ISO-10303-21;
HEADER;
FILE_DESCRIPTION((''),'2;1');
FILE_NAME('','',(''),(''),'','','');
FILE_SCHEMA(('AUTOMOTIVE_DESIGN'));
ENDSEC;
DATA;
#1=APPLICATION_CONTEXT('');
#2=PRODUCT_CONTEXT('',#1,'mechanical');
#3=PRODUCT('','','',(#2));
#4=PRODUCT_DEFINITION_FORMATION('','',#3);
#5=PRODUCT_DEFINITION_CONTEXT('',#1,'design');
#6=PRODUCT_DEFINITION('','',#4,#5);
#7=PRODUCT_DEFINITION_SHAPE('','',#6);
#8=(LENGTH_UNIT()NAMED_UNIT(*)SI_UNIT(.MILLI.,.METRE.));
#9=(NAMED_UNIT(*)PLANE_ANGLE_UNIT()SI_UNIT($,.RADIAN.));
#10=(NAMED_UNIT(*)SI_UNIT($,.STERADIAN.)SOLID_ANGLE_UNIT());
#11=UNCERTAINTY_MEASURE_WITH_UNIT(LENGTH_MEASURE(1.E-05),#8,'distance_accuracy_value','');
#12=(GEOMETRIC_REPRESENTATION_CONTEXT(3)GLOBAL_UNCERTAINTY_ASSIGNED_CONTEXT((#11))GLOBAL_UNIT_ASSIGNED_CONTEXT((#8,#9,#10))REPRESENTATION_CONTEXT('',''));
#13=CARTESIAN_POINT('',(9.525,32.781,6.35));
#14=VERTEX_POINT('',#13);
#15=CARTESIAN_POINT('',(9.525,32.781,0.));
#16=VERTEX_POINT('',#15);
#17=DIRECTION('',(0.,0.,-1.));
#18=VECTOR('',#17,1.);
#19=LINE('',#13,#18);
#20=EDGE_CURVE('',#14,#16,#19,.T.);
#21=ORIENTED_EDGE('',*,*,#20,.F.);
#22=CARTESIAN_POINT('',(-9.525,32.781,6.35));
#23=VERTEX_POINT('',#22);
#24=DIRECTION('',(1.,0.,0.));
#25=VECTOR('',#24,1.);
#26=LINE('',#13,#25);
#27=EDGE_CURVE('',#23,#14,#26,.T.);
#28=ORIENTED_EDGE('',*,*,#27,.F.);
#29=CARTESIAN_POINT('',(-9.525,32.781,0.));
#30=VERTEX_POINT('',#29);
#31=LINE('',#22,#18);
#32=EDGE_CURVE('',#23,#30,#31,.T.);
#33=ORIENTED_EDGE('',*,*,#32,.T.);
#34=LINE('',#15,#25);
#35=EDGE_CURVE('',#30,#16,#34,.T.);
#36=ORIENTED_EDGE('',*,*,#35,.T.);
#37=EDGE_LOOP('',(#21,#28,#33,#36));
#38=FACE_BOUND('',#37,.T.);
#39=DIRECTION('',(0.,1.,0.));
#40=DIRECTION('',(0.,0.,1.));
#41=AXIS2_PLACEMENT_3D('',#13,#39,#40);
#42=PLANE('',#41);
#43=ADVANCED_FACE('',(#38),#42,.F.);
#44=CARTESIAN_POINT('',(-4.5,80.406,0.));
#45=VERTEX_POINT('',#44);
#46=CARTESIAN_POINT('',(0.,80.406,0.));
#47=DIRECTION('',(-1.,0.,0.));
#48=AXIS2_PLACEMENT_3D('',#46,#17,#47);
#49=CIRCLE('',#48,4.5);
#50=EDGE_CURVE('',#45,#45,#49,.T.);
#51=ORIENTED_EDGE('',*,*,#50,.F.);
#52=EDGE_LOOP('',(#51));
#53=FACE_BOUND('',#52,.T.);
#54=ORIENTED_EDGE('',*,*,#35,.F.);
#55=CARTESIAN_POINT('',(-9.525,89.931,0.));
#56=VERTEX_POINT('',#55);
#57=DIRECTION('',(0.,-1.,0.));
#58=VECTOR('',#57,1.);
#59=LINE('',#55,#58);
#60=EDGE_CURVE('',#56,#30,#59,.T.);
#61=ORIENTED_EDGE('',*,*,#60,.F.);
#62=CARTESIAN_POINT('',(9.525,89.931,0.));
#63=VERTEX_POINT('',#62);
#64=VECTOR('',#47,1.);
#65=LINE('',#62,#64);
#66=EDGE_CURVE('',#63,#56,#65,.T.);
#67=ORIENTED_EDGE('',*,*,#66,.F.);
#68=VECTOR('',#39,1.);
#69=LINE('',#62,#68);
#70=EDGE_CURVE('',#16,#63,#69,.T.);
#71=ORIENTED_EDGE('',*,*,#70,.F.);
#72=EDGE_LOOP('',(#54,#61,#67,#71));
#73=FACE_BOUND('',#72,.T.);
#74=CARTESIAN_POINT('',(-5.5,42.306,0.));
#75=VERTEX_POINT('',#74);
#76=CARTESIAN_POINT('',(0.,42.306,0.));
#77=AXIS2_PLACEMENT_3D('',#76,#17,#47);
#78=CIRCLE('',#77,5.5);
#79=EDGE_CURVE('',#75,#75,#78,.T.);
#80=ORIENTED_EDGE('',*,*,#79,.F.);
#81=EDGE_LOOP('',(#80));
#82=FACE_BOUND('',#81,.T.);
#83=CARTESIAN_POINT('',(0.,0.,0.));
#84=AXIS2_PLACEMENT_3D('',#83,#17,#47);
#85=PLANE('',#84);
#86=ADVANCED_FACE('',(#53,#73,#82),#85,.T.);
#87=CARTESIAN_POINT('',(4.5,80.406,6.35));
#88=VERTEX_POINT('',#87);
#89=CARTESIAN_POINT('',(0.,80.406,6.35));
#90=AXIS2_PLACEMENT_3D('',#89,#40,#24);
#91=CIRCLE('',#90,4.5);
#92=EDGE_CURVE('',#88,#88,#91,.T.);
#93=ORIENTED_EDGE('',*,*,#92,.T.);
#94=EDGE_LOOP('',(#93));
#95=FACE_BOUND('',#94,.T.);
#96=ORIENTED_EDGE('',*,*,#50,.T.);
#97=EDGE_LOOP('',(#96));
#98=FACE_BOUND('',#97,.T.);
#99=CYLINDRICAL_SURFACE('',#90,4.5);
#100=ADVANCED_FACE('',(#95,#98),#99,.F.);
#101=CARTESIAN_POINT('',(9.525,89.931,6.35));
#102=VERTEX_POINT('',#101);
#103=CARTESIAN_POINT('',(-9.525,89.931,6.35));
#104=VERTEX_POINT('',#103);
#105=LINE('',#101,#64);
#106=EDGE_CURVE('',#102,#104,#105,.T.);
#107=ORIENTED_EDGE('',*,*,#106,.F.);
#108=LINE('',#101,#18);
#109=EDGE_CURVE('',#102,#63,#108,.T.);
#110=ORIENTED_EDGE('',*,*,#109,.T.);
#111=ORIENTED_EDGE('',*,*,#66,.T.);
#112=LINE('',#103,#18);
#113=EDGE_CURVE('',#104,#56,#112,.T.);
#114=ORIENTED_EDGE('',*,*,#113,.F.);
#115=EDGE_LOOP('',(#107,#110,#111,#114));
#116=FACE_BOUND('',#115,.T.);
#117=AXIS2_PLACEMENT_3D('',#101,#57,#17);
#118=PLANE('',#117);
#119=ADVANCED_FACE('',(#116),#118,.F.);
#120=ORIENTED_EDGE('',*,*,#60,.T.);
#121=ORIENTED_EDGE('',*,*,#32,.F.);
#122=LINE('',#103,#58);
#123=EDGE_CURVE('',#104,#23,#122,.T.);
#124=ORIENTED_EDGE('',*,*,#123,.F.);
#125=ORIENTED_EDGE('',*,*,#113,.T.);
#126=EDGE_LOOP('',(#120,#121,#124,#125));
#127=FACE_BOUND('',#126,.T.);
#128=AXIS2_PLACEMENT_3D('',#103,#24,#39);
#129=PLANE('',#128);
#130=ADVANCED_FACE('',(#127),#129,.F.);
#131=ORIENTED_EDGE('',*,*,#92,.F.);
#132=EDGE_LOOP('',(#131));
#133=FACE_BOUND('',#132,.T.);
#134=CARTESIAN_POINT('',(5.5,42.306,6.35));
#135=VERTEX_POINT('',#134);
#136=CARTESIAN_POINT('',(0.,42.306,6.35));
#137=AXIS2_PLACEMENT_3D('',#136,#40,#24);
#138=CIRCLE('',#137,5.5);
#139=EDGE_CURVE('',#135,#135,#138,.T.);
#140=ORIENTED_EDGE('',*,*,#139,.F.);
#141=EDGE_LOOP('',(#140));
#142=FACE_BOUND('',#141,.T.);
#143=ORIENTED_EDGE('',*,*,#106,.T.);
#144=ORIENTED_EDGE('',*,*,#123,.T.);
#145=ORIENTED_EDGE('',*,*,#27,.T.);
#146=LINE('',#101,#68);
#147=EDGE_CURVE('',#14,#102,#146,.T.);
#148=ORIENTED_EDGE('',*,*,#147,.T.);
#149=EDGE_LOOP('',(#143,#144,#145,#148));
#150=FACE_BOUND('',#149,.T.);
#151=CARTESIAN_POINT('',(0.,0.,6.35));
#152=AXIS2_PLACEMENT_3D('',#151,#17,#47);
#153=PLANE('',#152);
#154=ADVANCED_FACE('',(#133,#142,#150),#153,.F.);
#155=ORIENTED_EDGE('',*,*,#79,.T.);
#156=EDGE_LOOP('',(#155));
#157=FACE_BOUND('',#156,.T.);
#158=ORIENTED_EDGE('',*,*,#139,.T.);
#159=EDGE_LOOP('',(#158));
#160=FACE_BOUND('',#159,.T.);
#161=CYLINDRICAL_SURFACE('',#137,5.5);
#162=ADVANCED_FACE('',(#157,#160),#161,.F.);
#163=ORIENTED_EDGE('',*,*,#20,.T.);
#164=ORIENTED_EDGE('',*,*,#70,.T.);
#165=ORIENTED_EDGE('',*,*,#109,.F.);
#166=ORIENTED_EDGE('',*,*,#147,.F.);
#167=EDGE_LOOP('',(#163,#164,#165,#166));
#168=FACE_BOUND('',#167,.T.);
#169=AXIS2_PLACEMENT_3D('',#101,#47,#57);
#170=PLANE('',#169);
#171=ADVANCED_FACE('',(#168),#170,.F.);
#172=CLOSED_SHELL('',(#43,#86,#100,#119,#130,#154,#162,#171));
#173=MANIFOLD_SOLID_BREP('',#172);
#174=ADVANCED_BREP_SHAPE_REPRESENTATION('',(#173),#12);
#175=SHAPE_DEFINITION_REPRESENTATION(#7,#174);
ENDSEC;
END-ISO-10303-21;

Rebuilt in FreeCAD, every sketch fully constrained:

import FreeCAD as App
import Part
import Sketcher
from FreeCAD import Vector
Q = App.Units.Quantity

doc = App.newDocument("Part")
params = doc.addObject("Spreadsheet::Sheet", "Params")
for row, (alias, value) in enumerate([
    ("sketch1_width", "0.75 in"),
    ("sketch1_height", "2.25 in"),
    ("pad1_length", "0.25 in"),
    ("hole_diameter", "11 mm"),
    ("hole_depth", "1 in"),
    ("hole2_diameter", "9 mm"),
    ("hole2_depth", "1 in"),
], start=1):
    params.set(f"A{row}", alias)
    params.set(f"B{row}", "=" + value)
    params.setAlias(f"B{row}", alias)

body = doc.addObject("PartDesign::Body", "Body")

sketch1 = doc.addObject("Sketcher::SketchObject", "Sketch")
body.addObject(sketch1)
sketch1.AttachmentSupport = (doc.XY_Plane, [""])
sketch1.MapMode = "FlatFace"
sketch1.addGeometry([
    Part.LineSegment(Vector(-10, 90, 0), Vector(-10, 33, 0)),
    Part.LineSegment(Vector(-10, 33, 0), Vector(10, 33, 0)),
    Part.LineSegment(Vector(10, 33, 0), Vector(10, 90, 0)),
    Part.LineSegment(Vector(10, 90, 0), Vector(-10, 90, 0)),
], False)
sketch1.addConstraint([
    Sketcher.Constraint("Coincident", 0, 2, 1, 1),
    Sketcher.Constraint("Coincident", 1, 2, 2, 1),
    Sketcher.Constraint("Coincident", 2, 2, 3, 1),
    Sketcher.Constraint("Coincident", 3, 2, 0, 1),
    Sketcher.Constraint("Vertical", 0),
    Sketcher.Constraint("Horizontal", 1),
    Sketcher.Constraint("Vertical", 2),
    Sketcher.Constraint("Horizontal", 3),
    Sketcher.Constraint("DistanceX", 1, 1, 1, 2, Q("0.75 in")),
    Sketcher.Constraint("DistanceY", 0, 2, 0, 1, Q("2.25 in")),
    Sketcher.Constraint("DistanceX", 0, 2, -1, 1, Q("0.375 in")),
    Sketcher.Constraint("DistanceY", -1, 1, 0, 2, Q("32.781 mm")),
])
sketch1.setExpression("Constraints[8]", "Params.sketch1_width")
sketch1.setExpression("Constraints[9]", "Params.sketch1_height")
pad1 = doc.addObject("PartDesign::Pad", "Pad")
body.addObject(pad1)
pad1.Profile = sketch1
pad1.setExpression("Length", "Params.pad1_length")

sketch2 = doc.addObject("Sketcher::SketchObject", "Sketch001")
body.addObject(sketch2)
sketch2.AttachmentSupport = (doc.XY_Plane, [""])
sketch2.MapMode = "FlatFace"
sketch2.AttachmentOffset = App.Placement(Vector(0, 0, 0.25 * 25.4), App.Rotation())
sketch2.addGeometry(Part.Circle(Vector(0, 42, 0), Vector(0, 0, 1), 6), False)
sketch2.addConstraint([
    Sketcher.Constraint("PointOnObject", 0, 3, -2),
    Sketcher.Constraint("Diameter", 0, Q("11 mm")),
    Sketcher.Constraint("DistanceY", -1, 1, 0, 3, Q("42.306 mm")),
])
doc.recompute()
hole = doc.addObject("PartDesign::Hole", "Hole")
body.addObject(hole)
hole.Profile = sketch2
hole.ThreadType = "None"
hole.setExpression("Diameter", "Params.hole_diameter")
hole.DepthType = "Dimension"
hole.setExpression("Depth", "Params.hole_depth")
hole.DrillPoint = "Angled"
hole.DrillPointAngle = 118

sketch3 = doc.addObject("Sketcher::SketchObject", "Sketch002")
body.addObject(sketch3)
sketch3.AttachmentSupport = (doc.XY_Plane, [""])
sketch3.MapMode = "FlatFace"
sketch3.AttachmentOffset = App.Placement(Vector(0, 0, 0.25 * 25.4), App.Rotation())
sketch3.addGeometry(Part.Circle(Vector(0, 80.4, 0), Vector(0, 0, 1), 4.5), False)
sketch3.addConstraint([
    Sketcher.Constraint("PointOnObject", 0, 3, -2),
    Sketcher.Constraint("Diameter", 0, Q("9 mm")),
    Sketcher.Constraint("DistanceY", -1, 1, 0, 3, Q("80.406 mm")),
])
doc.recompute()
hole2 = doc.addObject("PartDesign::Hole", "Hole001")
body.addObject(hole2)
hole2.Profile = sketch3
hole2.ThreadType = "None"
hole2.setExpression("Diameter", "Params.hole2_diameter")
hole2.DepthType = "Dimension"
hole2.setExpression("Depth", "Params.hole2_depth")
hole2.DrillPoint = "Angled"
hole2.DrillPointAngle = 118

doc.recompute()
